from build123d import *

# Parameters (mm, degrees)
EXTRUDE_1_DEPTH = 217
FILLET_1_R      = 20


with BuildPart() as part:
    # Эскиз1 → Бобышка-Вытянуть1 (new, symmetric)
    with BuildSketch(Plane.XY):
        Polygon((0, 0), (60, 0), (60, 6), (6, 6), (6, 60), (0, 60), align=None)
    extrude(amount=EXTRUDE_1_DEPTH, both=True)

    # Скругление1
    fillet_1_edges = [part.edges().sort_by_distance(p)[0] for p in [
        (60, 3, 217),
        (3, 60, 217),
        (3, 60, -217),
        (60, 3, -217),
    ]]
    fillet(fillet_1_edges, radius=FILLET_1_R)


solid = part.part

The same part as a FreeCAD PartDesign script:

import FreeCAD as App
import Part
import Sketcher

V = App.Vector
Q = App.Units.Quantity


def edges_at(feature, points):
    """Names of the edges that pass closest to the given points."""
    edges = feature.Shape.Edges
    near = lambda p: min(range(len(edges)), key=lambda i: edges[i].distToShape(Part.Vertex(*p))[0])
    return sorted({f"Edge{near(p) + 1}" for p in points})

doc = App.newDocument("Part")
body = doc.addObject("PartDesign::Body", "Body")

# Sketch on XY plane
sketch1 = body.newObject("Sketcher::SketchObject", "Sketch")
sketch1.AttachmentSupport = (doc.getObject("XY_Plane"), [""])
sketch1.MapMode = "FlatFace"
sketch1.addGeometry(Part.LineSegment(V(0, 0, 0), V(60, 0, 0)), False)
sketch1.addGeometry(Part.LineSegment(V(60, 0, 0), V(60, 6, 0)), False)
sketch1.addGeometry(Part.LineSegment(V(60, 6, 0), V(6, 6, 0)), False)
sketch1.addGeometry(Part.LineSegment(V(6, 6, 0), V(6, 60, 0)), False)
sketch1.addGeometry(Part.LineSegment(V(6, 60, 0), V(0, 60, 0)), False)
sketch1.addGeometry(Part.LineSegment(V(0, 60, 0), V(0, 0, 0)), False)
sketch1.addConstraint(Sketcher.Constraint("Coincident", 0, 2, 1, 1))
sketch1.addConstraint(Sketcher.Constraint("Coincident", 1, 2, 2, 1))
sketch1.addConstraint(Sketcher.Constraint("Coincident", 2, 2, 3, 1))
sketch1.addConstraint(Sketcher.Constraint("Coincident", 3, 2, 4, 1))
sketch1.addConstraint(Sketcher.Constraint("Coincident", 4, 2, 5, 1))
sketch1.addConstraint(Sketcher.Constraint("Coincident", 5, 2, 0, 1))
sketch1.addConstraint(Sketcher.Constraint("Horizontal", 0))
sketch1.addConstraint(Sketcher.Constraint("Vertical", 1))
sketch1.addConstraint(Sketcher.Constraint("Horizontal", 2))
sketch1.addConstraint(Sketcher.Constraint("Vertical", 3))
sketch1.addConstraint(Sketcher.Constraint("Horizontal", 4))
sketch1.addConstraint(Sketcher.Constraint("Vertical", 5))
sketch1.addConstraint(Sketcher.Constraint("Coincident", 5, 2, -1, 1))
sketch1.addConstraint(Sketcher.Constraint("Equal", 4, 1))
sketch1.addConstraint(Sketcher.Constraint("Equal", 2, 3))
sketch1.addConstraint(Sketcher.Constraint("DistanceX", 0, 1, 0, 2, Q("60 mm")))
sketch1.addConstraint(Sketcher.Constraint("DistanceX", 2, 2, 2, 1, Q("54 mm")))
pad1 = body.newObject("PartDesign::Pad", "Pad")
pad1.Profile = sketch1
pad1.Length = 434
pad1.Midplane = True
doc.recompute()

fillet = body.newObject("PartDesign::Fillet", "Fillet")
fillet.Base = (pad1, edges_at(pad1, [
    (60, 3, 217),
    (3, 60, 217),
    (3, 60, -217),
    (60, 3, -217),
]))
fillet.Radius = 20

doc.recompute()
